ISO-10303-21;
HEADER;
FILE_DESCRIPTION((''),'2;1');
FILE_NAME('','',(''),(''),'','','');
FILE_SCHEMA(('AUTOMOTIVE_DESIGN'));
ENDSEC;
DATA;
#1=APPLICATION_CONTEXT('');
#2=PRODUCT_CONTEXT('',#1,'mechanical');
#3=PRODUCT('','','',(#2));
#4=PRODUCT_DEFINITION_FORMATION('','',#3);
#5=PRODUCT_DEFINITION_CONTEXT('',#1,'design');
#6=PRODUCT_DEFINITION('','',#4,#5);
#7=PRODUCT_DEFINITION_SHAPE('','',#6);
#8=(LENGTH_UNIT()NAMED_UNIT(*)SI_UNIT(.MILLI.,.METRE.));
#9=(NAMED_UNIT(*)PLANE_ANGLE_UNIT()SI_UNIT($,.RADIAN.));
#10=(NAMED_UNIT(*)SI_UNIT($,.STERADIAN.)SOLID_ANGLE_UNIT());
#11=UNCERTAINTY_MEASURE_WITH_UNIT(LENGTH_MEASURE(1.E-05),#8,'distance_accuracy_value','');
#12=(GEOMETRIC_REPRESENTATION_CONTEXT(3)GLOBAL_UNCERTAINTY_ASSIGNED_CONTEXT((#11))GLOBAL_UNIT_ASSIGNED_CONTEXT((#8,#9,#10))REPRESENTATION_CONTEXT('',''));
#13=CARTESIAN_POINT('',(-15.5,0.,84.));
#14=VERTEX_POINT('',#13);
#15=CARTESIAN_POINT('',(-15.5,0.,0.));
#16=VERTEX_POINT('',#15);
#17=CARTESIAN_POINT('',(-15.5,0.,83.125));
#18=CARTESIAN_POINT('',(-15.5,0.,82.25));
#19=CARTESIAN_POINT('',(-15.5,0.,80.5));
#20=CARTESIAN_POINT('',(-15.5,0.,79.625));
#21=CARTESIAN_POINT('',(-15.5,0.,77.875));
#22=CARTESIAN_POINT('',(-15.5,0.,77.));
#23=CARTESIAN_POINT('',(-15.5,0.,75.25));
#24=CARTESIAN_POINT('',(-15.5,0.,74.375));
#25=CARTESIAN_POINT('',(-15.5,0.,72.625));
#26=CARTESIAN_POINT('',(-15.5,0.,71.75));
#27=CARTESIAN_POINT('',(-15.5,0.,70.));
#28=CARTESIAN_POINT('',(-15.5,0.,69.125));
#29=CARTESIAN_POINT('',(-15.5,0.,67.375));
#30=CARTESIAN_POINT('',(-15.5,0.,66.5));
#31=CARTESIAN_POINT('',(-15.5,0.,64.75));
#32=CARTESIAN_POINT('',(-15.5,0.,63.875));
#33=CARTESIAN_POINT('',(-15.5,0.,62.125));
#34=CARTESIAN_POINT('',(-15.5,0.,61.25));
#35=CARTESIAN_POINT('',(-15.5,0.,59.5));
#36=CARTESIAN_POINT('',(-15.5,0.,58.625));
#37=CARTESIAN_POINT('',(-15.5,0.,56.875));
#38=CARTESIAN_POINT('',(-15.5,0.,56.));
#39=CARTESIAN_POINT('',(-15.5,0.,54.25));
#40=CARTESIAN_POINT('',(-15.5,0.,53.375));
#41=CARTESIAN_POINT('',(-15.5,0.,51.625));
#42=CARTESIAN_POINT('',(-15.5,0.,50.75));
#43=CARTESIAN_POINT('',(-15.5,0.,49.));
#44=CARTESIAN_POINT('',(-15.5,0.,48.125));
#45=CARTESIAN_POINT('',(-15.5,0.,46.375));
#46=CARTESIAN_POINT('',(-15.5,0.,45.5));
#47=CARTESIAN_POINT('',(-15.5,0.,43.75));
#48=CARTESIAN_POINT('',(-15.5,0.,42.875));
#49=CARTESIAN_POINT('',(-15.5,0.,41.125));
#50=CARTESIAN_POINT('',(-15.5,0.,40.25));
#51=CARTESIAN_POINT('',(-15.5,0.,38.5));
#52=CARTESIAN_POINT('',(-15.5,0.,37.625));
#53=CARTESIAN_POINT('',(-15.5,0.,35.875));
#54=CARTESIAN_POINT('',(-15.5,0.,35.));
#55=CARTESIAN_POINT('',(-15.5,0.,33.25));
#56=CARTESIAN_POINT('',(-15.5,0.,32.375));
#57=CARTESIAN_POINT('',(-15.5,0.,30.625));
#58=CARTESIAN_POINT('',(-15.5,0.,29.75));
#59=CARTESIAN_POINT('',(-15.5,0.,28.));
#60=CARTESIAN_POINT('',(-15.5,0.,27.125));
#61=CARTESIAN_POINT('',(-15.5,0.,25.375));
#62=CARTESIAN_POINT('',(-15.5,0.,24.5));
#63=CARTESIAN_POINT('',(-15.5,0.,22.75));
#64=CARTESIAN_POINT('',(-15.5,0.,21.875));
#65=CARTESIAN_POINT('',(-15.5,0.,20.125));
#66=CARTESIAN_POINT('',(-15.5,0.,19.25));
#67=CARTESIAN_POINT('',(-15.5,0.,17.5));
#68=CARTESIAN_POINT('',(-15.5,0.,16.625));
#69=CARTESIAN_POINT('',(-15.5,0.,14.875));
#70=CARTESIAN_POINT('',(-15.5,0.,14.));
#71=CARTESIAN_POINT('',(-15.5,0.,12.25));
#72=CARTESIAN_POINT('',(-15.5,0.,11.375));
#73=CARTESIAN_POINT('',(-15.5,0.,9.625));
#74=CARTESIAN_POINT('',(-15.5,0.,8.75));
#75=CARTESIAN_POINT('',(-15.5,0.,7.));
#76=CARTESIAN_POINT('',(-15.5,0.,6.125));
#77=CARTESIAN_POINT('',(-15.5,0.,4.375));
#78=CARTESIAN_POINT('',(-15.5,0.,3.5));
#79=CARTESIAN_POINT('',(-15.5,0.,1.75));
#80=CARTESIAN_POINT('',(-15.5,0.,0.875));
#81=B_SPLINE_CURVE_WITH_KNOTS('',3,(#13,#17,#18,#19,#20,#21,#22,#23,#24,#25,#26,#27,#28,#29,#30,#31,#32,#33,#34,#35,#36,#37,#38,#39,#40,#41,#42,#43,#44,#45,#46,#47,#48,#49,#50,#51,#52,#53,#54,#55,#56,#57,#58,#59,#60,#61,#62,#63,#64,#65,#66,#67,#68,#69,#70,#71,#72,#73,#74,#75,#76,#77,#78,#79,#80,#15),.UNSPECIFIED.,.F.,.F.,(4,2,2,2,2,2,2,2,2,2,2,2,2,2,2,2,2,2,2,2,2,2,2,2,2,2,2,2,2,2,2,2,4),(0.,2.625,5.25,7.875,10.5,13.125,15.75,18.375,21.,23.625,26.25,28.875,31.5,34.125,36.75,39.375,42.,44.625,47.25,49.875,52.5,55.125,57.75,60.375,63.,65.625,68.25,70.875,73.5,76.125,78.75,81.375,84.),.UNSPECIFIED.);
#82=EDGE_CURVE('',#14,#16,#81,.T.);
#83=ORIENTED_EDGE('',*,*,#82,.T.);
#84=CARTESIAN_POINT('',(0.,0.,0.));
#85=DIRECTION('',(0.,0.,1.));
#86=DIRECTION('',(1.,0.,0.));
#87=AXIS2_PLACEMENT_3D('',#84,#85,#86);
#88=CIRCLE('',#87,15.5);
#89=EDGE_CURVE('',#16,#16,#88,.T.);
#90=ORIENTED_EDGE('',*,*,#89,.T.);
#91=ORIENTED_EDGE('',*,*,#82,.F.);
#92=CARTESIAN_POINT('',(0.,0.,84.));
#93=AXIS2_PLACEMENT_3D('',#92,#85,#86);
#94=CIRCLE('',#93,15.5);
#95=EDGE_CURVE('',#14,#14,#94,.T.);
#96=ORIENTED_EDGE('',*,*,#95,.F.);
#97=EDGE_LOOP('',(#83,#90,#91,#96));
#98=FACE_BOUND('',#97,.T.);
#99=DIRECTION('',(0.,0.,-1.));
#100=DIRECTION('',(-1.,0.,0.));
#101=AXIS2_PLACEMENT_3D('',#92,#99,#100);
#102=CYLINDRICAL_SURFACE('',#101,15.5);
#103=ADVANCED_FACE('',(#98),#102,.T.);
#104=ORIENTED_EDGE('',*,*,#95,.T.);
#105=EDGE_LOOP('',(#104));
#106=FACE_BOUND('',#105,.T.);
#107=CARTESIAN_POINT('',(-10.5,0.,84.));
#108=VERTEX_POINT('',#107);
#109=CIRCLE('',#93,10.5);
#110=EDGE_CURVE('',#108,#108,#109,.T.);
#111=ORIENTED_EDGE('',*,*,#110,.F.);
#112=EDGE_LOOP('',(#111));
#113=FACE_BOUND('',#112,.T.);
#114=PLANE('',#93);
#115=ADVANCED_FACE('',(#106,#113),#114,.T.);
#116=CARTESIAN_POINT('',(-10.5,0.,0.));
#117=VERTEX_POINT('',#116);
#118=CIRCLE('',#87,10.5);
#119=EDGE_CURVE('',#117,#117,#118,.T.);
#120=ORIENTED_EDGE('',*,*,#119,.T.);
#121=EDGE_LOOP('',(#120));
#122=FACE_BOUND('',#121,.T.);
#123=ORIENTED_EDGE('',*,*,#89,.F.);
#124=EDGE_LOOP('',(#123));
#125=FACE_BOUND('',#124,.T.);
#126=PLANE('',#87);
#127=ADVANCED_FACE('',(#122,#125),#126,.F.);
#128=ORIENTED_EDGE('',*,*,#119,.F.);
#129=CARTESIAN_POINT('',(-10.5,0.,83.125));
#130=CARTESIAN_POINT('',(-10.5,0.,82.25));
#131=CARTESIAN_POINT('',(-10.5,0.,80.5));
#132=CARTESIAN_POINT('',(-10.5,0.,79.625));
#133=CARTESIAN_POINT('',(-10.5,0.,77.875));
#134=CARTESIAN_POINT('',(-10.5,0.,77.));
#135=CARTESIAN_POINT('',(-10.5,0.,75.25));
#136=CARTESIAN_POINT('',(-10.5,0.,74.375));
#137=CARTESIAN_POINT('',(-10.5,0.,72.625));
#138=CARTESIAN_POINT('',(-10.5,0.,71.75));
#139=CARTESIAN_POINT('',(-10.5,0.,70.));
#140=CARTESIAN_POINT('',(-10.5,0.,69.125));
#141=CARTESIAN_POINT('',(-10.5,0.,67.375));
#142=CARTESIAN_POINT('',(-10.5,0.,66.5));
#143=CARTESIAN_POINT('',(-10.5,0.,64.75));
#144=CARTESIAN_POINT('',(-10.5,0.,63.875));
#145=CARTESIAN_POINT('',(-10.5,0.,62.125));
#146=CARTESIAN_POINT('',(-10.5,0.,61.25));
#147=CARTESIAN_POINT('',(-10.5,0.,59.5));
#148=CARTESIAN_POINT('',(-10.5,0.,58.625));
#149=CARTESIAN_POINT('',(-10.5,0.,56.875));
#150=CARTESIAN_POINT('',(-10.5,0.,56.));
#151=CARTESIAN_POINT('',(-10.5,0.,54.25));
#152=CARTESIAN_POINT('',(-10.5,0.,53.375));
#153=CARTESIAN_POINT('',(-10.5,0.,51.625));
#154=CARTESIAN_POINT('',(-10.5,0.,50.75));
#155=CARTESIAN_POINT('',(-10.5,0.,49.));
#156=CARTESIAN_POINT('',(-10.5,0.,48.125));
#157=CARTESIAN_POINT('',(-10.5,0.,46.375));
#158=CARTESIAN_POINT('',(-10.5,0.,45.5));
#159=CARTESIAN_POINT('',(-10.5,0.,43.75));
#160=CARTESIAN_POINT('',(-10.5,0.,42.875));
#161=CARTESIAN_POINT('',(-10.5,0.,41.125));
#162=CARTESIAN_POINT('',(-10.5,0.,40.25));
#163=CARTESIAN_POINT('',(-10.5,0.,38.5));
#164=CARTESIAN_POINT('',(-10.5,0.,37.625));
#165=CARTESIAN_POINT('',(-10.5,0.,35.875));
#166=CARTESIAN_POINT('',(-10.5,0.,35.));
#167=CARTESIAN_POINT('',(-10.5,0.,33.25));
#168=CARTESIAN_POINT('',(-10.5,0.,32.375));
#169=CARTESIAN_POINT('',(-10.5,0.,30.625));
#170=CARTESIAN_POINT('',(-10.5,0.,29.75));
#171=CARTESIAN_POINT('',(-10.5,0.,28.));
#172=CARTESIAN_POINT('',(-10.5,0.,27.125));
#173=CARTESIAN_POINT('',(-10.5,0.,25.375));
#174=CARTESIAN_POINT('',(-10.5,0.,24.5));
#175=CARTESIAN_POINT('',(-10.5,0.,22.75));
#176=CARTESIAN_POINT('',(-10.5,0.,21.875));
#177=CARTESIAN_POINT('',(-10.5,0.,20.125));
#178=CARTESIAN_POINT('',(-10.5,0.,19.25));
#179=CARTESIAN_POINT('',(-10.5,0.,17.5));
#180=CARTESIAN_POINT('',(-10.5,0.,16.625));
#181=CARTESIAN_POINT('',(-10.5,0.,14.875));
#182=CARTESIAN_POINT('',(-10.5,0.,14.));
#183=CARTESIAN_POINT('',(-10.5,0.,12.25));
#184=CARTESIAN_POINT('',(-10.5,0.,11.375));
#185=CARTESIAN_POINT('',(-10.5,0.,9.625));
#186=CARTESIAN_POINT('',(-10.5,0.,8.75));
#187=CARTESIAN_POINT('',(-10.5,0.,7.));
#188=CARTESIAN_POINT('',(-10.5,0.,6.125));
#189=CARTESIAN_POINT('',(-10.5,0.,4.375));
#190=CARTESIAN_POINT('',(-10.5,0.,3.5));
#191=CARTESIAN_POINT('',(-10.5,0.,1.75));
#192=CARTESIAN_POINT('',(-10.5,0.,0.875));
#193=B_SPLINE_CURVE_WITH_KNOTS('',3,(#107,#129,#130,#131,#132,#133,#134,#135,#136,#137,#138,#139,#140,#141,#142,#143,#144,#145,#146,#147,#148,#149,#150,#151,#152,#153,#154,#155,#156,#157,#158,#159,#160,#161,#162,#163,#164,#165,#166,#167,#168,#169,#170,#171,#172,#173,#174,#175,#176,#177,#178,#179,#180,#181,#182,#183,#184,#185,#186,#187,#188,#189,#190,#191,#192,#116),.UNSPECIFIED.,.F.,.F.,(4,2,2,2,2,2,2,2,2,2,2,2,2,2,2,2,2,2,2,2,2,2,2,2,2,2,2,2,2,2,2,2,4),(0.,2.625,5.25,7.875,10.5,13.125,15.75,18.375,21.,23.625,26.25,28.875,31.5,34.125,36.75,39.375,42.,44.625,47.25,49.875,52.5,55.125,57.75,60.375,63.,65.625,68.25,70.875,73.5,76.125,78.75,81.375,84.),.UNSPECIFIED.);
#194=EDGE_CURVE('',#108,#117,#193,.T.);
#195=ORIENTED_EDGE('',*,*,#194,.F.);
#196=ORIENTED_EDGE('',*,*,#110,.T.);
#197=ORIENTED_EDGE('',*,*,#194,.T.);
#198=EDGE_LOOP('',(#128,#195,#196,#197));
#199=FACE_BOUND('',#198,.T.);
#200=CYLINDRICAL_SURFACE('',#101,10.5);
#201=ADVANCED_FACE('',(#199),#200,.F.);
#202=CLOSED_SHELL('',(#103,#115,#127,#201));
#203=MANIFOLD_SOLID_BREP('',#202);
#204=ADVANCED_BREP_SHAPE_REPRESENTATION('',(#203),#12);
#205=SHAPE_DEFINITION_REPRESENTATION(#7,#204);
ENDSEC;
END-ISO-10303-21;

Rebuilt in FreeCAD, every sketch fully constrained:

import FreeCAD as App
import Part
import Sketcher

V = App.Vector

doc = App.newDocument("Part")
body = doc.addObject("PartDesign::Body", "Body")

# Sketch on XY plane
sketch1 = body.newObject("Sketcher::SketchObject", "Sketch")
sketch1.AttachmentSupport = (doc.getObject("XY_Plane"), [""])
sketch1.MapMode = "FlatFace"
sketch1.addGeometry([
    Part.Circle(V(0, 0, 0), V(0, 0, 1), 16),
    Part.Circle(V(0, 0, 0), V(0, 0, 1), 10),
], False)
sketch1.addConstraint([
    Sketcher.Constraint("Coincident", 0, 3, -1, 1),
    Sketcher.Constraint("Coincident", 1, 3, -1, 1),
    Sketcher.Constraint("Diameter", 0, 31.0),
    Sketcher.Constraint("Diameter", 1, 21.0),
])
pad1 = body.newObject("PartDesign::Pad", "Pad")
pad1.Profile = sketch1
pad1.Length = 84

doc.recompute()
